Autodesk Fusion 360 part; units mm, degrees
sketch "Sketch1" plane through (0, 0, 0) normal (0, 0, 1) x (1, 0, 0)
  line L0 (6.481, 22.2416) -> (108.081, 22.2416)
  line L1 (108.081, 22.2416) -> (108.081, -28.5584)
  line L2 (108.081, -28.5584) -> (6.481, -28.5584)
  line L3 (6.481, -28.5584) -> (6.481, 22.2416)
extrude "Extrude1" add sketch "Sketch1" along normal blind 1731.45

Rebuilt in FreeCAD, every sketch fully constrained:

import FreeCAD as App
import Part
import Sketcher

V = App.Vector
Q = App.Units.Quantity


def add_polygon(sketch, points):
    """Adds a closed chain of lines whose ends are joined by coincident constraints."""
    first, n = sketch.GeometryCount, len(points)
    for a, b in zip(points, points[1:] + points[:1]):
        sketch.addGeometry(Part.LineSegment(App.Vector(*a, 0), App.Vector(*b, 0)), False)
    for i in range(n):
        sketch.addConstraint(Sketcher.Constraint("Coincident", first + i, 2, first + (i + 1) % n, 1))

doc = App.newDocument("Part")
body = doc.addObject("PartDesign::Body", "Body")

sketch1 = body.newObject("Sketcher::SketchObject", "Sketch")
sketch1.AttachmentSupport = (doc.getObject("XY_Plane"), [""])
sketch1.MapMode = "FlatFace"
add_polygon(sketch1, [(108, 22), (6, 22), (6, -29), (108, -29)])
sketch1.addConstraint([
    Sketcher.Constraint("Horizontal", 0),
    Sketcher.Constraint("Vertical", 1),
    Sketcher.Constraint("Horizontal", 2),
    Sketcher.Constraint("Vertical", 3),
    Sketcher.Constraint("DistanceX", 0, 2, 0, 1, Q("4 in")),
    Sketcher.Constraint("DistanceY", 1, 2, 1, 1, Q("2 in")),
    Sketcher.Constraint("DistanceX", -1, 1, 0, 2, Q("6.481 mm")),
    Sketcher.Constraint("DistanceY", -1, 1, 0, 2, Q("22.2416 mm")),
])
pad1 = body.newObject("PartDesign::Pad", "Pad")
pad1.Profile = sketch1
pad1.Length = 1731.45

doc.recompute()
